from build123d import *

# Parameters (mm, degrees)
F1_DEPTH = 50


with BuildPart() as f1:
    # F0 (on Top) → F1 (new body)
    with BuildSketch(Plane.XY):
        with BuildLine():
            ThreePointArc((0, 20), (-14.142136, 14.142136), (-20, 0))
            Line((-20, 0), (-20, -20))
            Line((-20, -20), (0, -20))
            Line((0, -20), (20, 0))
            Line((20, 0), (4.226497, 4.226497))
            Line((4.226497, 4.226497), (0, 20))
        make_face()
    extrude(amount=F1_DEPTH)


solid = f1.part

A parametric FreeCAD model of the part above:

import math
import FreeCAD as App
import Part
import Sketcher

V = App.Vector
Q = App.Units.Quantity

doc = App.newDocument("Part")
body = doc.addObject("PartDesign::Body", "Body")

sketch1 = body.newObject("Sketcher::SketchObject", "Sketch")
sketch1.AttachmentSupport = (doc.getObject("XY_Plane"), [""])
sketch1.MapMode = "FlatFace"
sketch1.addGeometry([
    Part.ArcOfCircle(Part.Circle(V(0, 0, 0), V(0, 0, 1), 20), math.radians(90), math.radians(180)),
    Part.LineSegment(V(-20, 0, 0), V(-20, -20, 0)),
    Part.LineSegment(V(-20, -20, 0), V(0, -20, 0)),
    Part.LineSegment(V(0, -20, 0), V(20, 0, 0)),
    Part.LineSegment(V(20, 0, 0), V(4, 4, 0)),
    Part.LineSegment(V(4, 4, 0), V(0, 20, 0)),
], False)
sketch1.addConstraint([
    Sketcher.Constraint("Tangent", 0, 2, 1, 1),
    Sketcher.Constraint("Coincident", 1, 2, 2, 1),
    Sketcher.Constraint("Coincident", 2, 2, 3, 1),
    Sketcher.Constraint("Coincident", 3, 2, 4, 1),
    Sketcher.Constraint("Coincident", 4, 2, 5, 1),
    Sketcher.Constraint("Coincident", 5, 2, 0, 1),
    Sketcher.Constraint("Vertical", 1),
    Sketcher.Constraint("Horizontal", 2),
    Sketcher.Constraint("Coincident", 0, 3, -1, 1),
    Sketcher.Constraint("Symmetric", 0, 2, 3, 2, -1, 1),
    Sketcher.Constraint("Symmetric", 2, 2, 5, 2, -1, 1),
    Sketcher.Constraint("PointOnObject", 2, 2, -2),
    Sketcher.Constraint("Equal", 4, 5),
    Sketcher.Constraint("Radius", 0, 19.999999),
    Sketcher.Constraint("Angle", 4, Q("165.000001 deg")),
])
pad1 = body.newObject("PartDesign::Pad", "Pad")
pad1.Profile = sketch1
pad1.Length = 50

doc.recompute()
